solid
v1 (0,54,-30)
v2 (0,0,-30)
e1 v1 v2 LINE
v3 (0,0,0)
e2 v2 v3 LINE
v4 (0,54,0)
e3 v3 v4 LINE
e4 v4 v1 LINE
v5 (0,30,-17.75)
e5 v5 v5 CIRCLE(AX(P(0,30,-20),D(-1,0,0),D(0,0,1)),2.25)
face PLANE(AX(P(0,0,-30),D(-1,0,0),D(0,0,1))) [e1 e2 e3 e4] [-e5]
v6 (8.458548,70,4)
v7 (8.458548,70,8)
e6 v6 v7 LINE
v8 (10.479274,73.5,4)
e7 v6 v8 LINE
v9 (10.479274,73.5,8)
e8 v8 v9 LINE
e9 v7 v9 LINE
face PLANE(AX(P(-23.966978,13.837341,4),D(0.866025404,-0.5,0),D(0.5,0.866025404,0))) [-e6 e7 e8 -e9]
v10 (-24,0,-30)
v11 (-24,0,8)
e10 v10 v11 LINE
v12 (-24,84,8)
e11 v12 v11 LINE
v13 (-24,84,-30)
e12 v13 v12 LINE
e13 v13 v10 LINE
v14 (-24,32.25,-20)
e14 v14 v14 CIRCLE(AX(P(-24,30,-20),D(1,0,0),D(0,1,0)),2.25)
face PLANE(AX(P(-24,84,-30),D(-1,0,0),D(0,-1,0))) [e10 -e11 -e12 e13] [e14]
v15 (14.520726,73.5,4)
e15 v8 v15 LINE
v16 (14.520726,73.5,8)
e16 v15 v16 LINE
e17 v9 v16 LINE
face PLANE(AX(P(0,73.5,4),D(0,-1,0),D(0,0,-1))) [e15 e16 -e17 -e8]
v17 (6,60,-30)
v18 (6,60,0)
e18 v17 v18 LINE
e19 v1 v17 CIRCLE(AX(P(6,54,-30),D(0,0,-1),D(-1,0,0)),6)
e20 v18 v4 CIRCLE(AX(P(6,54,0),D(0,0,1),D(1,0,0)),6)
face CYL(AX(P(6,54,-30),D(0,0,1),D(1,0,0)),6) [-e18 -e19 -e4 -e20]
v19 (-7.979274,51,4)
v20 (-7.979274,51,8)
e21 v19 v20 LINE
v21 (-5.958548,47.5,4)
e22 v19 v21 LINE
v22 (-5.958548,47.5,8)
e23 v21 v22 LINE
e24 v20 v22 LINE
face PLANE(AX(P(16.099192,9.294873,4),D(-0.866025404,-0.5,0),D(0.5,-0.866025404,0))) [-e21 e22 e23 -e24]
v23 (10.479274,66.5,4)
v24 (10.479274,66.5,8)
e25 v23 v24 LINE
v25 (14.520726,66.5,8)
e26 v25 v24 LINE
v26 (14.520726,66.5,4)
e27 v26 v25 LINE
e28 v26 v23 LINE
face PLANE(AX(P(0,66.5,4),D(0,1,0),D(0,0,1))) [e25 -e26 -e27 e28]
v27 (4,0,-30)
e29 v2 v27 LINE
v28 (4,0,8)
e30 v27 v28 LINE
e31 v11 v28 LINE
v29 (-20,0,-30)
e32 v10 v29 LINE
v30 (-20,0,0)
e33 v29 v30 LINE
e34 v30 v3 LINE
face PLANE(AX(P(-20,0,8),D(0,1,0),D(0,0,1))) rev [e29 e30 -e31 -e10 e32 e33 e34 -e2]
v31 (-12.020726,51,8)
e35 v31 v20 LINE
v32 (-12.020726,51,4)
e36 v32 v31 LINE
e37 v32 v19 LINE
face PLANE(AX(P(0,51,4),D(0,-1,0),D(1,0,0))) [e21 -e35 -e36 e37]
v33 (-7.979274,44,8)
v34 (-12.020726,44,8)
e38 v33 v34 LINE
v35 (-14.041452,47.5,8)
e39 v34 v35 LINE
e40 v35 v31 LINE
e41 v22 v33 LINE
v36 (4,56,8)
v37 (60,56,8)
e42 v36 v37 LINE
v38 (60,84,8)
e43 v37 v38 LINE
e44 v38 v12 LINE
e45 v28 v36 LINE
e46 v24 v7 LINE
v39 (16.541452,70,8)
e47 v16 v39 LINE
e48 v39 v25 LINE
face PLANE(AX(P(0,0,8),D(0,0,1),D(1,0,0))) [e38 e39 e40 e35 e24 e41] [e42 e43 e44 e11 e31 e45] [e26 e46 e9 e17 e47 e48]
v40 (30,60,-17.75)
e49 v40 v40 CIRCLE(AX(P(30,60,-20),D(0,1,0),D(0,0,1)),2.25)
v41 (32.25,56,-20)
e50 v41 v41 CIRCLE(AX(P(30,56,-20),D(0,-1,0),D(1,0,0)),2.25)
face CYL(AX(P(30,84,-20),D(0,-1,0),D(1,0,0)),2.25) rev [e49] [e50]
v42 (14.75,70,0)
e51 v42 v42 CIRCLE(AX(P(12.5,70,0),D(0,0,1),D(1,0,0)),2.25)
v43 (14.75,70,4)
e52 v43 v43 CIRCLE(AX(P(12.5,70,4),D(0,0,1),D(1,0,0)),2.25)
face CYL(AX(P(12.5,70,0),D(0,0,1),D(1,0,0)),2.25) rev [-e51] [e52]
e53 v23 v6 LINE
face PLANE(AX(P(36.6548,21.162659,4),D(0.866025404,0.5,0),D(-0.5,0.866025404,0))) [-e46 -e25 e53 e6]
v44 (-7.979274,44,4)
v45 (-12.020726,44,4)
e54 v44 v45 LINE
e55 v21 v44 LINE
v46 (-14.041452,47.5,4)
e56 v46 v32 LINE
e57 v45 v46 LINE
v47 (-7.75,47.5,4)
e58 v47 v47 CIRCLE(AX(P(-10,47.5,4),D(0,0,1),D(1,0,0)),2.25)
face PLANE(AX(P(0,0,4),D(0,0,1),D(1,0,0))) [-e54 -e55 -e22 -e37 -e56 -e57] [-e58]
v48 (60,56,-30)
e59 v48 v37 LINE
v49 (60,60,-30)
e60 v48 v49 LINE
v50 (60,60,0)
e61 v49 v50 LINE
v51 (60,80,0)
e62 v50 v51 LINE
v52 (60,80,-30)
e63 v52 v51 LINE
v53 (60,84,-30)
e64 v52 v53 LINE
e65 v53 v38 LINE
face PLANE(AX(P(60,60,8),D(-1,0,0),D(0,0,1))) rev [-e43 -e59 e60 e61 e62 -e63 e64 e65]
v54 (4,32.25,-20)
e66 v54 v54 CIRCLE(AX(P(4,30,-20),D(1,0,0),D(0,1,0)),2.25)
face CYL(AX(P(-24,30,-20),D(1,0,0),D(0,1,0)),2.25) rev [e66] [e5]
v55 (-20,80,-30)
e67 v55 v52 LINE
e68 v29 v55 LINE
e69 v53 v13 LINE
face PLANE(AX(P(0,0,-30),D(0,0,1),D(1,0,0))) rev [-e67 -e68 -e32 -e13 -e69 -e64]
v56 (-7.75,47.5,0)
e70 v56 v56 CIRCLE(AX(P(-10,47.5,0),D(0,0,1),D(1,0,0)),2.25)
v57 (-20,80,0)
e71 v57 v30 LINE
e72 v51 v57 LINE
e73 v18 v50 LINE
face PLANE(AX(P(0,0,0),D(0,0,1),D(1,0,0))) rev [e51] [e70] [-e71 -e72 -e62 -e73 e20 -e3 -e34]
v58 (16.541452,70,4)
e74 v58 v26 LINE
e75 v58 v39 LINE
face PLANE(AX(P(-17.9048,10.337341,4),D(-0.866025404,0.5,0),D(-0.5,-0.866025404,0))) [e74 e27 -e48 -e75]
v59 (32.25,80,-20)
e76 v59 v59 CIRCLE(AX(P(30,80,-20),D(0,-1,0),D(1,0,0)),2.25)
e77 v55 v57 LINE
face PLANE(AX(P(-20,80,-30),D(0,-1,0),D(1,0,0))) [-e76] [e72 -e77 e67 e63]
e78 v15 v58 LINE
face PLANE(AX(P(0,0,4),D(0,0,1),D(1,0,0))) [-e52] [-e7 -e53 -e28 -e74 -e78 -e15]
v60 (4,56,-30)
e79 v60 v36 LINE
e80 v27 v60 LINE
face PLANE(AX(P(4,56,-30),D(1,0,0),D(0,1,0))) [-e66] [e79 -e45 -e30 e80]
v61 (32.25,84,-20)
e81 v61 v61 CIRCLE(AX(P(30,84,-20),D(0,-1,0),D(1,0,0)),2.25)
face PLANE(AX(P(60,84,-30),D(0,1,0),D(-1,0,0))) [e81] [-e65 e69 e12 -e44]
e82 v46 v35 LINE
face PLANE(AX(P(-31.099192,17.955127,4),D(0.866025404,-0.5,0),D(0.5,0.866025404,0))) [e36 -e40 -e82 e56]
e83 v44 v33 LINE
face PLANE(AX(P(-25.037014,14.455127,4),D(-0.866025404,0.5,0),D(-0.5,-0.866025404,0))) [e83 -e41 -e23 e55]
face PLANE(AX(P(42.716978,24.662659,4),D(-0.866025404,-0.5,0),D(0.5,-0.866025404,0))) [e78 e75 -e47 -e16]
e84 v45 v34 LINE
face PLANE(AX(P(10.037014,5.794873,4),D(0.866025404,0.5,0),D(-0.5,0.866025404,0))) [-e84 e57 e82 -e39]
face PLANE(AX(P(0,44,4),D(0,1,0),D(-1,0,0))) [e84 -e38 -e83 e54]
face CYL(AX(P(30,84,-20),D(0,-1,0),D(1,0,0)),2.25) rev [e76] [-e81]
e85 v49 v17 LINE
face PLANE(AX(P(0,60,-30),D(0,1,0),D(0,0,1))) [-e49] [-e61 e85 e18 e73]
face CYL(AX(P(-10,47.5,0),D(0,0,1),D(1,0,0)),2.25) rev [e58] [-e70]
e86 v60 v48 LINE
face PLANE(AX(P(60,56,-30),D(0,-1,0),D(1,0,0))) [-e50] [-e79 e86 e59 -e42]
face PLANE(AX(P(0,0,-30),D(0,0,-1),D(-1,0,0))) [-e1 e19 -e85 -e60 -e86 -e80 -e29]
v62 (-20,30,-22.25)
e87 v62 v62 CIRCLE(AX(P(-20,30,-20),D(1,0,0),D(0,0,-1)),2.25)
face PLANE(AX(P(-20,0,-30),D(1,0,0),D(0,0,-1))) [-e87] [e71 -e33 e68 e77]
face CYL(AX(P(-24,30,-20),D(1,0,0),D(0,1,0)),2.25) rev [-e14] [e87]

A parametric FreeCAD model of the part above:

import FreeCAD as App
import Part
import Sketcher
Q = App.Units.Quantity


def edges_at(feature, points):
    """Names of the edges that pass closest to the given points."""
    edges = feature.Shape.Edges
    near = lambda p: min(range(len(edges)), key=lambda i: edges[i].distToShape(Part.Vertex(*p))[0])
    return sorted({f"Edge{near(p) + 1}" for p in points})

doc = App.newDocument("Part")
body = doc.addObject("PartDesign::Body", "Body")

# Sketch on XY plane
sketch1 = body.newObject("Sketcher::SketchObject", "Sketch")
sketch1.AttachmentSupport = (doc.getObject("XY_Plane"), [""])
sketch1.MapMode = "FlatFace"
sketch1.addGeometry(Part.LineSegment(App.Vector(0, 0, 0), App.Vector(0, 60, 0)), False)
sketch1.addGeometry(Part.LineSegment(App.Vector(0, 60, 0), App.Vector(60, 60, 0)), False)
sketch1.addGeometry(Part.LineSegment(App.Vector(60, 60, 0), App.Vector(60, 80, 0)), False)
sketch1.addGeometry(Part.LineSegment(App.Vector(60, 80, 0), App.Vector(-20, 80, 0)), False)
sketch1.addGeometry(Part.LineSegment(App.Vector(-20, 80, 0), App.Vector(-20, 0, 0)), False)
sketch1.addGeometry(Part.LineSegment(App.Vector(-20, 0, 0), App.Vector(0, 0, 0)), False)
sketch1.addConstraint(Sketcher.Constraint("Coincident", 0, 2, 1, 1))
sketch1.addConstraint(Sketcher.Constraint("Coincident", 1, 2, 2, 1))
sketch1.addConstraint(Sketcher.Constraint("Coincident", 2, 2, 3, 1))
sketch1.addConstraint(Sketcher.Constraint("Coincident", 3, 2, 4, 1))
sketch1.addConstraint(Sketcher.Constraint("Coincident", 4, 2, 5, 1))
sketch1.addConstraint(Sketcher.Constraint("Coincident", 5, 2, 0, 1))
sketch1.addConstraint(Sketcher.Constraint("Vertical", 0))
sketch1.addConstraint(Sketcher.Constraint("Horizontal", 1))
sketch1.addConstraint(Sketcher.Constraint("Vertical", 2))
sketch1.addConstraint(Sketcher.Constraint("Horizontal", 3))
sketch1.addConstraint(Sketcher.Constraint("Vertical", 4))
sketch1.addConstraint(Sketcher.Constraint("Horizontal", 5))
sketch1.addConstraint(Sketcher.Constraint("Coincident", 5, 2, -1, 1))
sketch1.addConstraint(Sketcher.Constraint("Equal", 1, 0))
sketch1.addConstraint(Sketcher.Constraint("Equal", 5, 2))
sketch1.addConstraint(Sketcher.Constraint("DistanceX", 1, 1, 1, 2, 60.0))
sketch1.addConstraint(Sketcher.Constraint("DistanceX", 3, 2, 3, 1, 80.0))
pad1 = body.newObject("PartDesign::Pad", "Pad")
pad1.Profile = sketch1
pad1.Length = 8

# Sketch on XY plane
sketch2 = body.newObject("Sketcher::SketchObject", "Sketch001")
sketch2.AttachmentSupport = (doc.getObject("XY_Plane"), [""])
sketch2.MapMode = "FlatFace"
sketch2.AttachmentOffset = App.Placement(App.Vector(0, 0, 8), App.Rotation())
sketch2.addGeometry(Part.LineSegment(App.Vector(-12, 51, 0), App.Vector(-14, 47.5, 0)), False)
sketch2.addGeometry(Part.LineSegment(App.Vector(-14, 47.5, 0), App.Vector(-12, 44, 0)), False)
sketch2.addGeometry(Part.LineSegment(App.Vector(-12, 44, 0), App.Vector(-8, 44, 0)), False)
sketch2.addGeometry(Part.LineSegment(App.Vector(-8, 44, 0), App.Vector(-6, 47.5, 0)), False)
sketch2.addGeometry(Part.LineSegment(App.Vector(-6, 47.5, 0), App.Vector(-8, 51, 0)), False)
sketch2.addGeometry(Part.LineSegment(App.Vector(-8, 51, 0), App.Vector(-12, 51, 0)), False)
sketch2.addGeometry(Part.LineSegment(App.Vector(10.5, 73.5, 0), App.Vector(8.5, 70, 0)), False)
sketch2.addGeometry(Part.LineSegment(App.Vector(8.5, 70, 0), App.Vector(10.5, 66.5, 0)), False)
sketch2.addGeometry(Part.LineSegment(App.Vector(10.5, 66.5, 0), App.Vector(14.5, 66.5, 0)), False)
sketch2.addGeometry(Part.LineSegment(App.Vector(14.5, 66.5, 0), App.Vector(16.5, 70, 0)), False)
sketch2.addGeometry(Part.LineSegment(App.Vector(16.5, 70, 0), App.Vector(14.5, 73.5, 0)), False)
sketch2.addGeometry(Part.LineSegment(App.Vector(14.5, 73.5, 0), App.Vector(10.5, 73.5, 0)), False)
sketch2.addConstraint(Sketcher.Constraint("Coincident", 0, 2, 1, 1))
sketch2.addConstraint(Sketcher.Constraint("Coincident", 1, 2, 2, 1))
sketch2.addConstraint(Sketcher.Constraint("Coincident", 2, 2, 3, 1))
sketch2.addConstraint(Sketcher.Constraint("Coincident", 3, 2, 4, 1))
sketch2.addConstraint(Sketcher.Constraint("Coincident", 4, 2, 5, 1))
sketch2.addConstraint(Sketcher.Constraint("Coincident", 5, 2, 0, 1))
sketch2.addConstraint(Sketcher.Constraint("Coincident", 6, 2, 7, 1))
sketch2.addConstraint(Sketcher.Constraint("Coincident", 7, 2, 8, 1))
sketch2.addConstraint(Sketcher.Constraint("Coincident", 8, 2, 9, 1))
sketch2.addConstraint(Sketcher.Constraint("Coincident", 9, 2, 10, 1))
sketch2.addConstraint(Sketcher.Constraint("Coincident", 10, 2, 11, 1))
sketch2.addConstraint(Sketcher.Constraint("Coincident", 11, 2, 6, 1))
sketch2.addConstraint(Sketcher.Constraint("Horizontal", 2))
sketch2.addConstraint(Sketcher.Constraint("Horizontal", 5))
sketch2.addConstraint(Sketcher.Constraint("Horizontal", 8))
sketch2.addConstraint(Sketcher.Constraint("Horizontal", 11))
sketch2.addConstraint(Sketcher.Constraint("Parallel", 0, 3))
sketch2.addConstraint(Sketcher.Constraint("Parallel", 1, 4))
sketch2.addConstraint(Sketcher.Constraint("Parallel", 3, 6))
sketch2.addConstraint(Sketcher.Constraint("Parallel", 4, 7))
sketch2.addConstraint(Sketcher.Constraint("Parallel", 6, 9))
sketch2.addConstraint(Sketcher.Constraint("Parallel", 7, 10))
sketch2.addConstraint(Sketcher.Constraint("Horizontal", 0, 2, 3, 2))
sketch2.addConstraint(Sketcher.Constraint("Horizontal", 6, 2, 9, 2))
sketch2.addConstraint(Sketcher.Constraint("Vertical", 2, 2, 4, 2))
sketch2.addConstraint(Sketcher.Constraint("Vertical", 1, 2, 5, 2))
sketch2.addConstraint(Sketcher.Constraint("Vertical", 8, 2, 10, 2))
sketch2.addConstraint(Sketcher.Constraint("Equal", 5, 8))
sketch2.addConstraint(Sketcher.Constraint("Equal", 4, 6))
sketch2.addConstraint(Sketcher.Constraint("Angle", 0, Q("-120 deg")))
sketch2.addConstraint(Sketcher.Constraint("DistanceY", -1, 1, 1, 2, 44.0))
sketch2.addConstraint(Sketcher.Constraint("DistanceY", -1, 1, 4, 2, 51.0))
sketch2.addConstraint(Sketcher.Constraint("DistanceY", -1, 1, 6, 2, 70.0))
sketch2.addConstraint(Sketcher.Constraint("DistanceX", 0, 2, 6, 2, 22.5))
sketch2.addConstraint(Sketcher.Constraint("DistanceX", 2, 1, 2, 2, 4.041452))
sketch2.addConstraint(Sketcher.Constraint("DistanceX", 0, 2, -1, 1, 14.041452))
pocket1 = body.newObject("PartDesign::Pocket", "Pocket")
pocket1.Profile = sketch2
pocket1.Length = 4

# Sketch on XY plane
sketch3 = body.newObject("Sketcher::SketchObject", "Sketch002")
sketch3.AttachmentSupport = (doc.getObject("XY_Plane"), [""])
sketch3.MapMode = "FlatFace"
sketch3.AttachmentOffset = App.Placement(App.Vector(0, 0, 4), App.Rotation())
sketch3.addGeometry(Part.Circle(App.Vector(-10, 47.5, 0), App.Vector(0, 0, 1), 2.2), False)
sketch3.addGeometry(Part.Circle(App.Vector(12.5, 70, 0), App.Vector(0, 0, 1), 2.2), False)
sketch3.addConstraint(Sketcher.Constraint("Equal", 0, 1))
sketch3.addConstraint(Sketcher.Constraint("Diameter", 0, 4.5))
sketch3.addConstraint(Sketcher.Constraint("DistanceX", 0, 3, -1, 1, 10.0))
sketch3.addConstraint(Sketcher.Constraint("DistanceY", -1, 1, 1, 3, 70.0))
sketch3.addConstraint(Sketcher.Constraint("DistanceY", -1, 1, 0, 3, 47.5))
sketch3.addConstraint(Sketcher.Constraint("DistanceX", -1, 1, 1, 3, 12.5))
pocket2 = body.newObject("PartDesign::Pocket", "Pocket001")
pocket2.Profile = sketch3
pocket2.Type = "ThroughAll"

# Sketch on XY plane
sketch4 = body.newObject("Sketcher::SketchObject", "Sketch003")
sketch4.AttachmentSupport = (doc.getObject("XY_Plane"), [""])
sketch4.MapMode = "FlatFace"
sketch4.AttachmentOffset = App.Placement(App.Vector(0, 0, 8), App.Rotation())
sketch4.addGeometry(Part.LineSegment(App.Vector(0, 60, 0), App.Vector(0, 0, 0)), False)
sketch4.addGeometry(Part.LineSegment(App.Vector(0, 0, 0), App.Vector(4, 0, 0)), False)
sketch4.addGeometry(Part.LineSegment(App.Vector(4, 0, 0), App.Vector(4, 56, 0)), False)
sketch4.addGeometry(Part.LineSegment(App.Vector(4, 56, 0), App.Vector(60, 56, 0)), False)
sketch4.addGeometry(Part.LineSegment(App.Vector(60, 56, 0), App.Vector(60, 60, 0)), False)
sketch4.addGeometry(Part.LineSegment(App.Vector(60, 60, 0), App.Vector(0, 60, 0)), False)
sketch4.addGeometry(Part.LineSegment(App.Vector(60, 80, 0), App.Vector(60, 84, 0)), False)
sketch4.addGeometry(Part.LineSegment(App.Vector(60, 84, 0), App.Vector(-24, 84, 0)), False)
sketch4.addGeometry(Part.LineSegment(App.Vector(-24, 84, 0), App.Vector(-24, 0, 0)), False)
sketch4.addGeometry(Part.LineSegment(App.Vector(-24, 0, 0), App.Vector(-20, 0, 0)), False)
sketch4.addGeometry(Part.LineSegment(App.Vector(-20, 0, 0), App.Vector(-20, 80, 0)), False)
sketch4.addGeometry(Part.LineSegment(App.Vector(-20, 80, 0), App.Vector(60, 80, 0)), False)
sketch4.addConstraint(Sketcher.Constraint("Coincident", 0, 2, 1, 1))
sketch4.addConstraint(Sketcher.Constraint("Coincident", 1, 2, 2, 1))
sketch4.addConstraint(Sketcher.Constraint("Coincident", 2, 2, 3, 1))
sketch4.addConstraint(Sketcher.Constraint("Coincident", 3, 2, 4, 1))
sketch4.addConstraint(Sketcher.Constraint("Coincident", 4, 2, 5, 1))
sketch4.addConstraint(Sketcher.Constraint("Coincident", 5, 2, 0, 1))
sketch4.addConstraint(Sketcher.Constraint("Coincident", 6, 2, 7, 1))
sketch4.addConstraint(Sketcher.Constraint("Coincident", 7, 2, 8, 1))
sketch4.addConstraint(Sketcher.Constraint("Coincident", 8, 2, 9, 1))
sketch4.addConstraint(Sketcher.Constraint("Coincident", 9, 2, 10, 1))
sketch4.addConstraint(Sketcher.Constraint("Coincident", 10, 2, 11, 1))
sketch4.addConstraint(Sketcher.Constraint("Coincident", 11, 2, 6, 1))
sketch4.addConstraint(Sketcher.Constraint("Vertical", 0))
sketch4.addConstraint(Sketcher.Constraint("Horizontal", 1))
sketch4.addConstraint(Sketcher.Constraint("Vertical", 2))
sketch4.addConstraint(Sketcher.Constraint("Horizontal", 3))
sketch4.addConstraint(Sketcher.Constraint("Vertical", 4))
sketch4.addConstraint(Sketcher.Constraint("Horizontal", 5))
sketch4.addConstraint(Sketcher.Constraint("Vertical", 6))
sketch4.addConstraint(Sketcher.Constraint("Horizontal", 7))
sketch4.addConstraint(Sketcher.Constraint("Vertical", 8))
sketch4.addConstraint(Sketcher.Constraint("Horizontal", 9))
sketch4.addConstraint(Sketcher.Constraint("Vertical", 10))
sketch4.addConstraint(Sketcher.Constraint("Horizontal", 11))
sketch4.addConstraint(Sketcher.Constraint("Coincident", 0, 2, -1, 1))
sketch4.addConstraint(Sketcher.Constraint("PointOnObject", 8, 2, -1))
sketch4.addConstraint(Sketcher.Constraint("Vertical", 4, 2, 6, 2))
sketch4.addConstraint(Sketcher.Constraint("Equal", 1, 9))
sketch4.addConstraint(Sketcher.Constraint("Equal", 5, 0))
sketch4.addConstraint(Sketcher.Constraint("Equal", 3, 2))
sketch4.addConstraint(Sketcher.Constraint("Equal", 4, 6))
sketch4.addConstraint(Sketcher.Constraint("Equal", 7, 8))
sketch4.addConstraint(Sketcher.Constraint("DistanceX", 1, 1, 1, 2, 4.0))
sketch4.addConstraint(Sketcher.Constraint("DistanceX", 3, 1, 3, 2, 56.0))
sketch4.addConstraint(Sketcher.Constraint("DistanceX", 7, 2, 7, 1, 84.0))
pad2 = body.newObject("PartDesign::Pad", "Pad001")
pad2.Profile = sketch4
pad2.Length = 38
pad2.Reversed = True

# Sketch on XZ plane
sketch5 = body.newObject("Sketcher::SketchObject", "Sketch004")
sketch5.AttachmentSupport = (doc.getObject("XZ_Plane"), [""])
sketch5.MapMode = "FlatFace"
sketch5.AttachmentOffset = App.Placement(App.Vector(0, 0, -56), App.Rotation())
sketch5.addGeometry(Part.Circle(App.Vector(30, -20, 0), App.Vector(0, 0, 1), 2.2), False)
sketch5.addConstraint(Sketcher.Constraint("Diameter", 0, 4.5))
sketch5.addConstraint(Sketcher.Constraint("DistanceX", -1, 1, 0, 3, 30.0))
sketch5.addConstraint(Sketcher.Constraint("DistanceY", 0, 3, -1, 1, 20.0))
pocket3 = body.newObject("PartDesign::Pocket", "Pocket002")
pocket3.Profile = sketch5
pocket3.Type = "ThroughAll"

# Sketch on YZ plane
sketch6 = body.newObject("Sketcher::SketchObject", "Sketch005")
sketch6.AttachmentSupport = (doc.getObject("YZ_Plane"), [""])
sketch6.MapMode = "FlatFace"
sketch6.AttachmentOffset = App.Placement(App.Vector(0, 0, 4), App.Rotation())
sketch6.addGeometry(Part.Circle(App.Vector(30, -20, 0), App.Vector(0, 0, 1), 2.2), False)
sketch6.addConstraint(Sketcher.Constraint("Diameter", 0, 4.5))
sketch6.addConstraint(Sketcher.Constraint("DistanceX", -1, 1, 0, 3, 30.0))
sketch6.addConstraint(Sketcher.Constraint("DistanceY", 0, 3, -1, 1, 20.0))
pocket4 = body.newObject("PartDesign::Pocket", "Pocket003")
pocket4.Profile = sketch6
pocket4.Type = "ThroughAll"
doc.recompute()

fillet = body.newObject("PartDesign::Fillet", "Fillet")
fillet.Base = (pocket4, edges_at(pocket4, [(0, 60, -15)]))
fillet.Radius = 6

doc.recompute()
